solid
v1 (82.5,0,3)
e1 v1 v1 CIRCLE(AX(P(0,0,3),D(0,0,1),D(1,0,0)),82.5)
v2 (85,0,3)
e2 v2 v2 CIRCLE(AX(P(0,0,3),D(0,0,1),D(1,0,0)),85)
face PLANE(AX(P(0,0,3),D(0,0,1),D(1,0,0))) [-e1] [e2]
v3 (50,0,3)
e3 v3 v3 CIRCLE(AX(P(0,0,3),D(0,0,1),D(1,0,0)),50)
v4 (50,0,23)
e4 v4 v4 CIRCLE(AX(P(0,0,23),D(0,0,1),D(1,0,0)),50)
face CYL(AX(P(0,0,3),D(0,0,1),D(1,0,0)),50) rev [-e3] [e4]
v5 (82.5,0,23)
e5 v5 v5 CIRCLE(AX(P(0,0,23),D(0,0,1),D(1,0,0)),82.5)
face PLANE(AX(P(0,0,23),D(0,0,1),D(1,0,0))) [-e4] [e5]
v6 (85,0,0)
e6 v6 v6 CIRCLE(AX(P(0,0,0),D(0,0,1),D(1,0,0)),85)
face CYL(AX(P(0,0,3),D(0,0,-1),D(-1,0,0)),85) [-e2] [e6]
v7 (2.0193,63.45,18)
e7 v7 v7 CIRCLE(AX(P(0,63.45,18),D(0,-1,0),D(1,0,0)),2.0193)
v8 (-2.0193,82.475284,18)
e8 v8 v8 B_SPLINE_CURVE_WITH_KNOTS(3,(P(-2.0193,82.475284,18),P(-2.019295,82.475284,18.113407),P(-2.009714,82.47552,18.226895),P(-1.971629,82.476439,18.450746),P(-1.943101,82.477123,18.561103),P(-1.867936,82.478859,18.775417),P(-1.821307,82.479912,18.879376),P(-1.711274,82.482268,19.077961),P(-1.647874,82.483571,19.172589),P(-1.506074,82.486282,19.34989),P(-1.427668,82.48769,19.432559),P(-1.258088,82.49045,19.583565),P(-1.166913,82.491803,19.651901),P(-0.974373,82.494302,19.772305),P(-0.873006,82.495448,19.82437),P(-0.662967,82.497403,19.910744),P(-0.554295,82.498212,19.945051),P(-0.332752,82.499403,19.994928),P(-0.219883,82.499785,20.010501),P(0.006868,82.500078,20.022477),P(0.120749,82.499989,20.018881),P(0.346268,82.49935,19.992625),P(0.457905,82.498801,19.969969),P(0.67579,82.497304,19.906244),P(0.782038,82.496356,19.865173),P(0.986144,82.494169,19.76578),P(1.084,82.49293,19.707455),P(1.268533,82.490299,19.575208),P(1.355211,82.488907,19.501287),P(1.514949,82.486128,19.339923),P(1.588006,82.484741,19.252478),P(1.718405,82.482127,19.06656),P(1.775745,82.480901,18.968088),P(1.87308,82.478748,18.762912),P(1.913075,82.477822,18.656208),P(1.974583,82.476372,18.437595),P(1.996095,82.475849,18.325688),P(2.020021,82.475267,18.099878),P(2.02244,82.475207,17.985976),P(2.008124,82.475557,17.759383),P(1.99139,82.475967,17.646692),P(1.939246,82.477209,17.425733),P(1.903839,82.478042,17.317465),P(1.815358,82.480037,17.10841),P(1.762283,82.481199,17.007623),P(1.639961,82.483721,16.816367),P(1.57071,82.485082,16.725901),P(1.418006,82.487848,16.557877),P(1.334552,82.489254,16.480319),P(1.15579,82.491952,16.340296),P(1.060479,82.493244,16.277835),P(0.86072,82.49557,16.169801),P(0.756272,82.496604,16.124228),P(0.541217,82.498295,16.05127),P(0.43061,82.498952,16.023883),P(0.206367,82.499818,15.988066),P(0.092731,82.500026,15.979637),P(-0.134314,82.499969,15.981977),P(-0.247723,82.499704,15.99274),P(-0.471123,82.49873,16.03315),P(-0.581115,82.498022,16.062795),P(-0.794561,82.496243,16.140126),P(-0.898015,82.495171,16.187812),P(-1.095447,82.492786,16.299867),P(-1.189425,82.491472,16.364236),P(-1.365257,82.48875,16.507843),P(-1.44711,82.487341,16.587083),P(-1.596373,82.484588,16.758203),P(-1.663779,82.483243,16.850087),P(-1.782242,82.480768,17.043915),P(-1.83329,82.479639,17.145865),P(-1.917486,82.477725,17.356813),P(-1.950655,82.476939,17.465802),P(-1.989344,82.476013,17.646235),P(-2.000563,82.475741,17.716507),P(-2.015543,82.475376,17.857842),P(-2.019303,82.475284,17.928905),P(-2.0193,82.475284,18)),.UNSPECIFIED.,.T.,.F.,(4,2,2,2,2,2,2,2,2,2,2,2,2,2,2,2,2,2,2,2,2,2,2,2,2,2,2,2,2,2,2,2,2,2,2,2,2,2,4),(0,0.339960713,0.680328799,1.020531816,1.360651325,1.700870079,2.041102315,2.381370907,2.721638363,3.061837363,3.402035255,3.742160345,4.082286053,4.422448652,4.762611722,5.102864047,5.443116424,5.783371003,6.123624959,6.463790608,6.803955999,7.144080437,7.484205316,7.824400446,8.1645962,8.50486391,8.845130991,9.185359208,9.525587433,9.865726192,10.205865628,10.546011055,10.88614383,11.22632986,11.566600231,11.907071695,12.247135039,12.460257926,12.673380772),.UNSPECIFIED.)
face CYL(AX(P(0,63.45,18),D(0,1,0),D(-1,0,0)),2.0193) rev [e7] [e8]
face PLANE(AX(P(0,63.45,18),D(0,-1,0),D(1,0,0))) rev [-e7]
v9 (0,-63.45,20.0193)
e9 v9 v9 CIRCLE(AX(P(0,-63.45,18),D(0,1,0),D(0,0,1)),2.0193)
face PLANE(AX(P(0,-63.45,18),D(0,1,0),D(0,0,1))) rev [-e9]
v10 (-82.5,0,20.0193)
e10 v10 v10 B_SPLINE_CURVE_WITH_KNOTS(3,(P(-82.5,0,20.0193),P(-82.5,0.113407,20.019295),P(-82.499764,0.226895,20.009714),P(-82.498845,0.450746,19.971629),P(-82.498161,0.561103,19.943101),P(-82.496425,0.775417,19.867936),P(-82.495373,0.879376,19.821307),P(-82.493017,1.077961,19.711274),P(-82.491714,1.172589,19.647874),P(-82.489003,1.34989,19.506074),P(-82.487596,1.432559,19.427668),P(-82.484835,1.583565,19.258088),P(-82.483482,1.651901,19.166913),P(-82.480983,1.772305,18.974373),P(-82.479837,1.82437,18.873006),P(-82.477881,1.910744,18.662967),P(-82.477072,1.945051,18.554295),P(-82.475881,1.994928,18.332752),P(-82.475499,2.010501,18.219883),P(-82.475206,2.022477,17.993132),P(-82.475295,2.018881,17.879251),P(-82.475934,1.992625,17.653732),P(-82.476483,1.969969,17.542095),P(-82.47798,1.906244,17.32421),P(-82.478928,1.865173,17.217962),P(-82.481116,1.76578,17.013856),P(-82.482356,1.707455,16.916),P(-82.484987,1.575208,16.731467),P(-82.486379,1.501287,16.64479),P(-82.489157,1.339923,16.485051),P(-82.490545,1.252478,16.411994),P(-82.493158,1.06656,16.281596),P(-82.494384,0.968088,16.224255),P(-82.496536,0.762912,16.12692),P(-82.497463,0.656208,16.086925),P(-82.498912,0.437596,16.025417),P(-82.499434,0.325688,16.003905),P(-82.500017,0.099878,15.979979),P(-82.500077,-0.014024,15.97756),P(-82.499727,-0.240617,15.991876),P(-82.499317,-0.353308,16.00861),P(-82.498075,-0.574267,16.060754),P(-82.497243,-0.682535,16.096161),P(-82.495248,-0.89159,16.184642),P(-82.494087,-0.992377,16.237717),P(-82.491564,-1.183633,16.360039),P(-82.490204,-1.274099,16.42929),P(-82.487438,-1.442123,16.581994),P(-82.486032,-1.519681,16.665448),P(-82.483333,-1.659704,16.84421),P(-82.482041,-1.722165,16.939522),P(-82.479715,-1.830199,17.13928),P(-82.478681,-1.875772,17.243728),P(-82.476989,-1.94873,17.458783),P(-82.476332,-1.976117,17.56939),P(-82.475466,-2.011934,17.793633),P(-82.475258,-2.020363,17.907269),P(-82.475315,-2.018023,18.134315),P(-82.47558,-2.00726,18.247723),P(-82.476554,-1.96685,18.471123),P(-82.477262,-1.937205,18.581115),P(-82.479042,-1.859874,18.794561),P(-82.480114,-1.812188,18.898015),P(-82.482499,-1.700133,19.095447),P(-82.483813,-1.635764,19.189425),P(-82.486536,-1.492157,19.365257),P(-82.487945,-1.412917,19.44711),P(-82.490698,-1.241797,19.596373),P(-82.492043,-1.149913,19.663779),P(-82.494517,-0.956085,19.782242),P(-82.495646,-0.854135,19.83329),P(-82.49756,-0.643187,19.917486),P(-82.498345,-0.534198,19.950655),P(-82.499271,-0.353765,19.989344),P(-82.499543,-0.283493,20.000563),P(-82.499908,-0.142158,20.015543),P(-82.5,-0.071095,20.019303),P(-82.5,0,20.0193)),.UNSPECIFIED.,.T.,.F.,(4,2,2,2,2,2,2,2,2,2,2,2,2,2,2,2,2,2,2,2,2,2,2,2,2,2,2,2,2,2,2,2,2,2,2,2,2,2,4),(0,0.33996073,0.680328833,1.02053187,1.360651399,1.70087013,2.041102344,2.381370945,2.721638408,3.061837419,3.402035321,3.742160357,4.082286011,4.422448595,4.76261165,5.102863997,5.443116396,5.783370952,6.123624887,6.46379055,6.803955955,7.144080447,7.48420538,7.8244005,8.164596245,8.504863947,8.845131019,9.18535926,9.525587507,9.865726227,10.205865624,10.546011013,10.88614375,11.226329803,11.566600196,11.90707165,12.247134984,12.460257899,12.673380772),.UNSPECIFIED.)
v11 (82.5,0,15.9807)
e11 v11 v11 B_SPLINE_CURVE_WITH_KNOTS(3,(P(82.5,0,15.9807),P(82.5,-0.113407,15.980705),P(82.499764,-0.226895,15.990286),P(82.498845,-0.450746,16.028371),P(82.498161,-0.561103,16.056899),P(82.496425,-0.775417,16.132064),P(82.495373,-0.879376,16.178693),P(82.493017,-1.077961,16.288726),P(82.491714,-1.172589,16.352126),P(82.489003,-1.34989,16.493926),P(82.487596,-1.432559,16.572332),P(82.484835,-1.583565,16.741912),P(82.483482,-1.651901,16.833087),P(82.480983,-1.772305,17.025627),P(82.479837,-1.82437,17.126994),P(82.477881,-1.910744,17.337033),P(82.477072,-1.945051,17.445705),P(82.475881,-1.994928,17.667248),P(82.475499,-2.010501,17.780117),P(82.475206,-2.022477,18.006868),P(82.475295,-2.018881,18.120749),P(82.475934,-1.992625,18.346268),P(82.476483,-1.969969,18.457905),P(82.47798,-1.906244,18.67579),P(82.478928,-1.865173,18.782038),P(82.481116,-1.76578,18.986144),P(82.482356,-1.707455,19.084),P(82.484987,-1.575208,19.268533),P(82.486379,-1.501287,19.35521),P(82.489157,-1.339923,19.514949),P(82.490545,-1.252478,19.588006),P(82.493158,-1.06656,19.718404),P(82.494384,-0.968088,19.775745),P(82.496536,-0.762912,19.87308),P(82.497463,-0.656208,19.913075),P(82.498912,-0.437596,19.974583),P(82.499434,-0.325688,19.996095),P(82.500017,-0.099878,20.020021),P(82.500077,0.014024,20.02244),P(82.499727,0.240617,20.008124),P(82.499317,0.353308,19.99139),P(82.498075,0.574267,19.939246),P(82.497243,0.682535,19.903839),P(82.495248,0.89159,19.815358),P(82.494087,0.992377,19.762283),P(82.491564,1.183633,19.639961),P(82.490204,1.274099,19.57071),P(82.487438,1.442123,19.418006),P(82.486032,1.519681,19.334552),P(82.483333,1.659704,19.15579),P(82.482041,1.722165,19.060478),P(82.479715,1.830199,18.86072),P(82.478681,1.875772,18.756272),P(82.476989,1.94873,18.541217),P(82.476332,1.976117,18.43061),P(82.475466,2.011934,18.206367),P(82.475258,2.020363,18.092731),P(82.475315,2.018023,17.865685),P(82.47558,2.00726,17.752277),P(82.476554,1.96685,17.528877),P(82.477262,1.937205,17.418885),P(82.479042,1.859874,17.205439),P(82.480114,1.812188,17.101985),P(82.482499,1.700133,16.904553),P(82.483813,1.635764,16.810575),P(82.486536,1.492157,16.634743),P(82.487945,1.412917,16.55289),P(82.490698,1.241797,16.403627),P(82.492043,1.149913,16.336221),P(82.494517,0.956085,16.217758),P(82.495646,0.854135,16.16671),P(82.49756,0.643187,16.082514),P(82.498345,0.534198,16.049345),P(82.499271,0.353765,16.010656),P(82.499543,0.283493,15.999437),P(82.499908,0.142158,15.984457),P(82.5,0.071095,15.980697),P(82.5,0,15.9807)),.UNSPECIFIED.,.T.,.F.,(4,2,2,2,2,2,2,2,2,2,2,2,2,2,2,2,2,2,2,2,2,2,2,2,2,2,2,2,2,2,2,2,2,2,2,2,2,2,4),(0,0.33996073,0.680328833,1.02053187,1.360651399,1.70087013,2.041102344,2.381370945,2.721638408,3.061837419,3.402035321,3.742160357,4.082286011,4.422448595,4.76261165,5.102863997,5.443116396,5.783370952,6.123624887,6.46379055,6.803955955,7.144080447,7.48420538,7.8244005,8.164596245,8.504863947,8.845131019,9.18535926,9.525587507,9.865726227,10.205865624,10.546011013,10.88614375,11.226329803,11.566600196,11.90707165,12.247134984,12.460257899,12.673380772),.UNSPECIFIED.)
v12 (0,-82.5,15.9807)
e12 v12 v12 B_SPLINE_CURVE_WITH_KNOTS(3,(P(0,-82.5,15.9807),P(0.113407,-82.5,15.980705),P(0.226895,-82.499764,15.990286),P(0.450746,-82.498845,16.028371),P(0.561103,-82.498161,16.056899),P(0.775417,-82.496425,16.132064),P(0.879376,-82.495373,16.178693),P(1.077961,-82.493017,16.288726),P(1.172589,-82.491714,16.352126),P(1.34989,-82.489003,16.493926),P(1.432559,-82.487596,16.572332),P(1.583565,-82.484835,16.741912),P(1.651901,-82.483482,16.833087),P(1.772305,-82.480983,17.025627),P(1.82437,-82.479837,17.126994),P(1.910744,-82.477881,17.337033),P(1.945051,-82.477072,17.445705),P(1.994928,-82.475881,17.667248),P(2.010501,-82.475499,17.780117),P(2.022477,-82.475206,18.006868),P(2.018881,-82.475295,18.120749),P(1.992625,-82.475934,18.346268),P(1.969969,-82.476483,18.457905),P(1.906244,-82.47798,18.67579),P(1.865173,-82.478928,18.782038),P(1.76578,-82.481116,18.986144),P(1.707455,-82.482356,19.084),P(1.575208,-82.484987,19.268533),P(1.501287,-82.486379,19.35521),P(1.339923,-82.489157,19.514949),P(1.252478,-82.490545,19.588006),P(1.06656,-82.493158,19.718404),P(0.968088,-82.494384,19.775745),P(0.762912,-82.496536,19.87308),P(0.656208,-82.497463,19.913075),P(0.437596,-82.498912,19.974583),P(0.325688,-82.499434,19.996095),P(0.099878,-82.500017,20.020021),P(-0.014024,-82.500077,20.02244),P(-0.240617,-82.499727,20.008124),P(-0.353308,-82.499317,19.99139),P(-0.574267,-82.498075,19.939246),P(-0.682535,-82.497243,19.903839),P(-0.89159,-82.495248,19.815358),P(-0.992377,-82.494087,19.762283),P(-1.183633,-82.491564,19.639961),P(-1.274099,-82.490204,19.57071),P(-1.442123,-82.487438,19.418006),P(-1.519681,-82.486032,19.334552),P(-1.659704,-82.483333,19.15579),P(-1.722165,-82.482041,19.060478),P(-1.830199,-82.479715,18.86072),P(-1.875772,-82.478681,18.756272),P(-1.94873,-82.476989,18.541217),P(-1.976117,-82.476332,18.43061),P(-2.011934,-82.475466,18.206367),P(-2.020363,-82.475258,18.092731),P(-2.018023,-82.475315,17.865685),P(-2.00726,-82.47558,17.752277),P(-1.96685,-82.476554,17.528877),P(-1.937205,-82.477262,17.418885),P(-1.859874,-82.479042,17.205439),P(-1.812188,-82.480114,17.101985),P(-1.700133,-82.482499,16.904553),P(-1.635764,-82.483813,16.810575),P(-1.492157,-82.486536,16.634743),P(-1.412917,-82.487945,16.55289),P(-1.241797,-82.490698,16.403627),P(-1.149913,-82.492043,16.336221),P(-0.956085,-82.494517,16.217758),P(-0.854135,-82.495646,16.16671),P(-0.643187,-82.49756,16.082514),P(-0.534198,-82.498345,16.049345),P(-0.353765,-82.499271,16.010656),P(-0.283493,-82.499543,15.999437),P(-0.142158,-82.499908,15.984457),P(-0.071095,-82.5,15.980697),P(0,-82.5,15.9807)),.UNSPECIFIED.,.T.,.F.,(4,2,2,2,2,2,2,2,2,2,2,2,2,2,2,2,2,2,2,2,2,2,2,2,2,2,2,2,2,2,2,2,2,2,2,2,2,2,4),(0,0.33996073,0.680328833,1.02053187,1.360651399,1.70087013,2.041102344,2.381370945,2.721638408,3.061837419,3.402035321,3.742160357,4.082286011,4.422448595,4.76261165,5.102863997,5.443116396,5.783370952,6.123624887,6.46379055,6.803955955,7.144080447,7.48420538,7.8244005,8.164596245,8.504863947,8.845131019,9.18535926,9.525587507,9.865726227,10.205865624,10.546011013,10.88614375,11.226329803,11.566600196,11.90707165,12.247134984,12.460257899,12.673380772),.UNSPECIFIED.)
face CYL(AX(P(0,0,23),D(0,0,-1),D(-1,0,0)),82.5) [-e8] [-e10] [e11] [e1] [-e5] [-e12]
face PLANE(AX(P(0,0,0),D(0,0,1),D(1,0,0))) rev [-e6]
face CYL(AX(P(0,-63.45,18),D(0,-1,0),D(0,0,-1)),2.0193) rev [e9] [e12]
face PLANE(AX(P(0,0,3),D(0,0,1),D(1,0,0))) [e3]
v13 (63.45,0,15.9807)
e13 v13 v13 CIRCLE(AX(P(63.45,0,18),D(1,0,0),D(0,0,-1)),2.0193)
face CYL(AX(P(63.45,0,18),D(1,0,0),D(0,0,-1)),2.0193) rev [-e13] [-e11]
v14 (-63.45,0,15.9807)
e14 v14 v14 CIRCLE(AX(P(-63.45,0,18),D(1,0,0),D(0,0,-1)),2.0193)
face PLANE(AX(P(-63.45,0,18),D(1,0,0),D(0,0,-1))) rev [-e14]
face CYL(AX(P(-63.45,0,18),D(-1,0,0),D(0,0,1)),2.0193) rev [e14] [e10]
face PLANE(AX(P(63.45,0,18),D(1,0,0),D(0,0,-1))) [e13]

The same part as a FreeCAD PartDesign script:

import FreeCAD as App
import Part
import Sketcher
from FreeCAD import Vector
Q = App.Units.Quantity

doc = App.newDocument("Part")
params = doc.addObject("Spreadsheet::Sheet", "Params")
for row, (alias, value) in enumerate([
    ("sketch1_diameter", "170 mm"),
    ("pad1_length", "3 mm"),
    ("sketch2_diameter", "165 mm"),
    ("pad2_length", "20 mm"),
    ("sketch3_diameter", "100 mm"),
    ("pocket1_length", "20 mm"),
    ("pocket2_length", "19.05 mm"),
    ("pocket3_length", "19.05 mm"),
    ("pocket4_length", "19.05 mm"),
    ("pocket5_length", "19.05 mm"),
], start=1):
    params.set(f"A{row}", alias)
    params.set(f"B{row}", "=" + value)
    params.setAlias(f"B{row}", alias)

body = doc.addObject("PartDesign::Body", "Body")

sketch1 = body.newObject("Sketcher::SketchObject", "Sketch")
sketch1.AttachmentSupport = (doc.getObject("XY_Plane"), [""])
sketch1.MapMode = "FlatFace"
sketch1.addGeometry(Part.Circle(Vector(0, 0, 0), Vector(0, 0, 1), 85), False)
sketch1.addConstraint([
    Sketcher.Constraint("Coincident", 0, 3, -1, 1),
    Sketcher.Constraint("Diameter", 0, Q("170 mm")),
])
sketch1.setExpression("Constraints[1]", "Params.sketch1_diameter")
pad1 = body.newObject("PartDesign::Pad", "Pad")
pad1.Profile = sketch1
pad1.setExpression("Length", "Params.pad1_length")

sketch2 = body.newObject("Sketcher::SketchObject", "Sketch001")
sketch2.AttachmentSupport = (doc.getObject("XY_Plane"), [""])
sketch2.MapMode = "FlatFace"
sketch2.AttachmentOffset = App.Placement(Vector(0, 0, 3), App.Rotation())
sketch2.addGeometry(Part.Circle(Vector(0, 0, 0), Vector(0, 0, 1), 82), False)
sketch2.addConstraint([
    Sketcher.Constraint("Coincident", 0, 3, -1, 1),
    Sketcher.Constraint("Diameter", 0, Q("165 mm")),
])
sketch2.setExpression("Constraints[1]", "Params.sketch2_diameter")
pad2 = body.newObject("PartDesign::Pad", "Pad001")
pad2.Profile = sketch2
pad2.setExpression("Length", "Params.pad2_length")

sketch3 = body.newObject("Sketcher::SketchObject", "Sketch002")
sketch3.AttachmentSupport = (doc.getObject("XY_Plane"), [""])
sketch3.MapMode = "FlatFace"
sketch3.AttachmentOffset = App.Placement(Vector(0, 0, 23), App.Rotation())
sketch3.addGeometry(Part.Circle(Vector(0, 0, 0), Vector(0, 0, 1), 50), False)
sketch3.addConstraint([
    Sketcher.Constraint("Coincident", 0, 3, -1, 1),
    Sketcher.Constraint("Diameter", 0, Q("100 mm")),
])
sketch3.setExpression("Constraints[1]", "Params.sketch3_diameter")
pocket1 = body.newObject("PartDesign::Pocket", "Pocket")
pocket1.Profile = sketch3
pocket1.setExpression("Length", "Params.pocket1_length")

sketch4 = body.newObject("Sketcher::SketchObject", "Sketch003")
sketch4.AttachmentSupport = (doc.getObject("XZ_Plane"), [""])
sketch4.MapMode = "FlatFace"
sketch4.AttachmentOffset = App.Placement(Vector(0, 0, -82.5), App.Rotation())
sketch4.addGeometry(Part.Circle(Vector(0, 18, 0), Vector(0, 0, 1), 2), False)
sketch4.addConstraint([
    Sketcher.Constraint("PointOnObject", 0, 3, -2),
    Sketcher.Constraint("DistanceY", -1, 1, 0, 3, Q("18 mm")),
    Sketcher.Constraint("Diameter", 0, Q("4.0386 mm")),
])
pocket2 = body.newObject("PartDesign::Pocket", "Pocket001")
pocket2.Profile = sketch4
pocket2.setExpression("Length", "Params.pocket2_length")
pocket2.Reversed = True

sketch5 = body.newObject("Sketcher::SketchObject", "Sketch004")
sketch5.AttachmentSupport = (doc.getObject("XZ_Plane"), [""])
sketch5.MapMode = "FlatFace"
sketch5.AttachmentOffset = App.Placement(Vector(0, 0, 63.45), App.Rotation())
sketch5.addGeometry(Part.Circle(Vector(0, 18, 0), Vector(0, 0, 1), 2), False)
sketch5.addConstraint([
    Sketcher.Constraint("PointOnObject", 0, 3, -2),
    Sketcher.Constraint("DistanceY", -1, 1, 0, 3, Q("18 mm")),
    Sketcher.Constraint("Diameter", 0, Q("4.0386 mm")),
])
pocket3 = body.newObject("PartDesign::Pocket", "Pocket002")
pocket3.Profile = sketch5
pocket3.setExpression("Length", "Params.pocket3_length")
pocket3.Reversed = True

sketch6 = body.newObject("Sketcher::SketchObject", "Sketch005")
sketch6.AttachmentSupport = (doc.getObject("YZ_Plane"), [""])
sketch6.MapMode = "FlatFace"
sketch6.AttachmentOffset = App.Placement(Vector(0, 0, 82.5), App.Rotation())
sketch6.addGeometry(Part.Circle(Vector(0, 18, 0), Vector(0, 0, 1), 2), False)
sketch6.addConstraint([
    Sketcher.Constraint("PointOnObject", 0, 3, -2),
    Sketcher.Constraint("DistanceY", -1, 1, 0, 3, Q("18 mm")),
    Sketcher.Constraint("Diameter", 0, Q("4.0386 mm")),
])
pocket4 = body.newObject("PartDesign::Pocket", "Pocket003")
pocket4.Profile = sketch6
pocket4.setExpression("Length", "Params.pocket4_length")

sketch7 = body.newObject("Sketcher::SketchObject", "Sketch006")
sketch7.AttachmentSupport = (doc.getObject("YZ_Plane"), [""])
sketch7.MapMode = "FlatFace"
sketch7.AttachmentOffset = App.Placement(Vector(0, 0, -63.45), App.Rotation())
sketch7.addGeometry(Part.Circle(Vector(0, 18, 0), Vector(0, 0, 1), 2), False)
sketch7.addConstraint([
    Sketcher.Constraint("PointOnObject", 0, 3, -2),
    Sketcher.Constraint("DistanceY", -1, 1, 0, 3, Q("18 mm")),
    Sketcher.Constraint("Diameter", 0, Q("4.0386 mm")),
])
pocket5 = body.newObject("PartDesign::Pocket", "Pocket004")
pocket5.Profile = sketch7
pocket5.setExpression("Length", "Params.pocket5_length")

doc.recompute()
